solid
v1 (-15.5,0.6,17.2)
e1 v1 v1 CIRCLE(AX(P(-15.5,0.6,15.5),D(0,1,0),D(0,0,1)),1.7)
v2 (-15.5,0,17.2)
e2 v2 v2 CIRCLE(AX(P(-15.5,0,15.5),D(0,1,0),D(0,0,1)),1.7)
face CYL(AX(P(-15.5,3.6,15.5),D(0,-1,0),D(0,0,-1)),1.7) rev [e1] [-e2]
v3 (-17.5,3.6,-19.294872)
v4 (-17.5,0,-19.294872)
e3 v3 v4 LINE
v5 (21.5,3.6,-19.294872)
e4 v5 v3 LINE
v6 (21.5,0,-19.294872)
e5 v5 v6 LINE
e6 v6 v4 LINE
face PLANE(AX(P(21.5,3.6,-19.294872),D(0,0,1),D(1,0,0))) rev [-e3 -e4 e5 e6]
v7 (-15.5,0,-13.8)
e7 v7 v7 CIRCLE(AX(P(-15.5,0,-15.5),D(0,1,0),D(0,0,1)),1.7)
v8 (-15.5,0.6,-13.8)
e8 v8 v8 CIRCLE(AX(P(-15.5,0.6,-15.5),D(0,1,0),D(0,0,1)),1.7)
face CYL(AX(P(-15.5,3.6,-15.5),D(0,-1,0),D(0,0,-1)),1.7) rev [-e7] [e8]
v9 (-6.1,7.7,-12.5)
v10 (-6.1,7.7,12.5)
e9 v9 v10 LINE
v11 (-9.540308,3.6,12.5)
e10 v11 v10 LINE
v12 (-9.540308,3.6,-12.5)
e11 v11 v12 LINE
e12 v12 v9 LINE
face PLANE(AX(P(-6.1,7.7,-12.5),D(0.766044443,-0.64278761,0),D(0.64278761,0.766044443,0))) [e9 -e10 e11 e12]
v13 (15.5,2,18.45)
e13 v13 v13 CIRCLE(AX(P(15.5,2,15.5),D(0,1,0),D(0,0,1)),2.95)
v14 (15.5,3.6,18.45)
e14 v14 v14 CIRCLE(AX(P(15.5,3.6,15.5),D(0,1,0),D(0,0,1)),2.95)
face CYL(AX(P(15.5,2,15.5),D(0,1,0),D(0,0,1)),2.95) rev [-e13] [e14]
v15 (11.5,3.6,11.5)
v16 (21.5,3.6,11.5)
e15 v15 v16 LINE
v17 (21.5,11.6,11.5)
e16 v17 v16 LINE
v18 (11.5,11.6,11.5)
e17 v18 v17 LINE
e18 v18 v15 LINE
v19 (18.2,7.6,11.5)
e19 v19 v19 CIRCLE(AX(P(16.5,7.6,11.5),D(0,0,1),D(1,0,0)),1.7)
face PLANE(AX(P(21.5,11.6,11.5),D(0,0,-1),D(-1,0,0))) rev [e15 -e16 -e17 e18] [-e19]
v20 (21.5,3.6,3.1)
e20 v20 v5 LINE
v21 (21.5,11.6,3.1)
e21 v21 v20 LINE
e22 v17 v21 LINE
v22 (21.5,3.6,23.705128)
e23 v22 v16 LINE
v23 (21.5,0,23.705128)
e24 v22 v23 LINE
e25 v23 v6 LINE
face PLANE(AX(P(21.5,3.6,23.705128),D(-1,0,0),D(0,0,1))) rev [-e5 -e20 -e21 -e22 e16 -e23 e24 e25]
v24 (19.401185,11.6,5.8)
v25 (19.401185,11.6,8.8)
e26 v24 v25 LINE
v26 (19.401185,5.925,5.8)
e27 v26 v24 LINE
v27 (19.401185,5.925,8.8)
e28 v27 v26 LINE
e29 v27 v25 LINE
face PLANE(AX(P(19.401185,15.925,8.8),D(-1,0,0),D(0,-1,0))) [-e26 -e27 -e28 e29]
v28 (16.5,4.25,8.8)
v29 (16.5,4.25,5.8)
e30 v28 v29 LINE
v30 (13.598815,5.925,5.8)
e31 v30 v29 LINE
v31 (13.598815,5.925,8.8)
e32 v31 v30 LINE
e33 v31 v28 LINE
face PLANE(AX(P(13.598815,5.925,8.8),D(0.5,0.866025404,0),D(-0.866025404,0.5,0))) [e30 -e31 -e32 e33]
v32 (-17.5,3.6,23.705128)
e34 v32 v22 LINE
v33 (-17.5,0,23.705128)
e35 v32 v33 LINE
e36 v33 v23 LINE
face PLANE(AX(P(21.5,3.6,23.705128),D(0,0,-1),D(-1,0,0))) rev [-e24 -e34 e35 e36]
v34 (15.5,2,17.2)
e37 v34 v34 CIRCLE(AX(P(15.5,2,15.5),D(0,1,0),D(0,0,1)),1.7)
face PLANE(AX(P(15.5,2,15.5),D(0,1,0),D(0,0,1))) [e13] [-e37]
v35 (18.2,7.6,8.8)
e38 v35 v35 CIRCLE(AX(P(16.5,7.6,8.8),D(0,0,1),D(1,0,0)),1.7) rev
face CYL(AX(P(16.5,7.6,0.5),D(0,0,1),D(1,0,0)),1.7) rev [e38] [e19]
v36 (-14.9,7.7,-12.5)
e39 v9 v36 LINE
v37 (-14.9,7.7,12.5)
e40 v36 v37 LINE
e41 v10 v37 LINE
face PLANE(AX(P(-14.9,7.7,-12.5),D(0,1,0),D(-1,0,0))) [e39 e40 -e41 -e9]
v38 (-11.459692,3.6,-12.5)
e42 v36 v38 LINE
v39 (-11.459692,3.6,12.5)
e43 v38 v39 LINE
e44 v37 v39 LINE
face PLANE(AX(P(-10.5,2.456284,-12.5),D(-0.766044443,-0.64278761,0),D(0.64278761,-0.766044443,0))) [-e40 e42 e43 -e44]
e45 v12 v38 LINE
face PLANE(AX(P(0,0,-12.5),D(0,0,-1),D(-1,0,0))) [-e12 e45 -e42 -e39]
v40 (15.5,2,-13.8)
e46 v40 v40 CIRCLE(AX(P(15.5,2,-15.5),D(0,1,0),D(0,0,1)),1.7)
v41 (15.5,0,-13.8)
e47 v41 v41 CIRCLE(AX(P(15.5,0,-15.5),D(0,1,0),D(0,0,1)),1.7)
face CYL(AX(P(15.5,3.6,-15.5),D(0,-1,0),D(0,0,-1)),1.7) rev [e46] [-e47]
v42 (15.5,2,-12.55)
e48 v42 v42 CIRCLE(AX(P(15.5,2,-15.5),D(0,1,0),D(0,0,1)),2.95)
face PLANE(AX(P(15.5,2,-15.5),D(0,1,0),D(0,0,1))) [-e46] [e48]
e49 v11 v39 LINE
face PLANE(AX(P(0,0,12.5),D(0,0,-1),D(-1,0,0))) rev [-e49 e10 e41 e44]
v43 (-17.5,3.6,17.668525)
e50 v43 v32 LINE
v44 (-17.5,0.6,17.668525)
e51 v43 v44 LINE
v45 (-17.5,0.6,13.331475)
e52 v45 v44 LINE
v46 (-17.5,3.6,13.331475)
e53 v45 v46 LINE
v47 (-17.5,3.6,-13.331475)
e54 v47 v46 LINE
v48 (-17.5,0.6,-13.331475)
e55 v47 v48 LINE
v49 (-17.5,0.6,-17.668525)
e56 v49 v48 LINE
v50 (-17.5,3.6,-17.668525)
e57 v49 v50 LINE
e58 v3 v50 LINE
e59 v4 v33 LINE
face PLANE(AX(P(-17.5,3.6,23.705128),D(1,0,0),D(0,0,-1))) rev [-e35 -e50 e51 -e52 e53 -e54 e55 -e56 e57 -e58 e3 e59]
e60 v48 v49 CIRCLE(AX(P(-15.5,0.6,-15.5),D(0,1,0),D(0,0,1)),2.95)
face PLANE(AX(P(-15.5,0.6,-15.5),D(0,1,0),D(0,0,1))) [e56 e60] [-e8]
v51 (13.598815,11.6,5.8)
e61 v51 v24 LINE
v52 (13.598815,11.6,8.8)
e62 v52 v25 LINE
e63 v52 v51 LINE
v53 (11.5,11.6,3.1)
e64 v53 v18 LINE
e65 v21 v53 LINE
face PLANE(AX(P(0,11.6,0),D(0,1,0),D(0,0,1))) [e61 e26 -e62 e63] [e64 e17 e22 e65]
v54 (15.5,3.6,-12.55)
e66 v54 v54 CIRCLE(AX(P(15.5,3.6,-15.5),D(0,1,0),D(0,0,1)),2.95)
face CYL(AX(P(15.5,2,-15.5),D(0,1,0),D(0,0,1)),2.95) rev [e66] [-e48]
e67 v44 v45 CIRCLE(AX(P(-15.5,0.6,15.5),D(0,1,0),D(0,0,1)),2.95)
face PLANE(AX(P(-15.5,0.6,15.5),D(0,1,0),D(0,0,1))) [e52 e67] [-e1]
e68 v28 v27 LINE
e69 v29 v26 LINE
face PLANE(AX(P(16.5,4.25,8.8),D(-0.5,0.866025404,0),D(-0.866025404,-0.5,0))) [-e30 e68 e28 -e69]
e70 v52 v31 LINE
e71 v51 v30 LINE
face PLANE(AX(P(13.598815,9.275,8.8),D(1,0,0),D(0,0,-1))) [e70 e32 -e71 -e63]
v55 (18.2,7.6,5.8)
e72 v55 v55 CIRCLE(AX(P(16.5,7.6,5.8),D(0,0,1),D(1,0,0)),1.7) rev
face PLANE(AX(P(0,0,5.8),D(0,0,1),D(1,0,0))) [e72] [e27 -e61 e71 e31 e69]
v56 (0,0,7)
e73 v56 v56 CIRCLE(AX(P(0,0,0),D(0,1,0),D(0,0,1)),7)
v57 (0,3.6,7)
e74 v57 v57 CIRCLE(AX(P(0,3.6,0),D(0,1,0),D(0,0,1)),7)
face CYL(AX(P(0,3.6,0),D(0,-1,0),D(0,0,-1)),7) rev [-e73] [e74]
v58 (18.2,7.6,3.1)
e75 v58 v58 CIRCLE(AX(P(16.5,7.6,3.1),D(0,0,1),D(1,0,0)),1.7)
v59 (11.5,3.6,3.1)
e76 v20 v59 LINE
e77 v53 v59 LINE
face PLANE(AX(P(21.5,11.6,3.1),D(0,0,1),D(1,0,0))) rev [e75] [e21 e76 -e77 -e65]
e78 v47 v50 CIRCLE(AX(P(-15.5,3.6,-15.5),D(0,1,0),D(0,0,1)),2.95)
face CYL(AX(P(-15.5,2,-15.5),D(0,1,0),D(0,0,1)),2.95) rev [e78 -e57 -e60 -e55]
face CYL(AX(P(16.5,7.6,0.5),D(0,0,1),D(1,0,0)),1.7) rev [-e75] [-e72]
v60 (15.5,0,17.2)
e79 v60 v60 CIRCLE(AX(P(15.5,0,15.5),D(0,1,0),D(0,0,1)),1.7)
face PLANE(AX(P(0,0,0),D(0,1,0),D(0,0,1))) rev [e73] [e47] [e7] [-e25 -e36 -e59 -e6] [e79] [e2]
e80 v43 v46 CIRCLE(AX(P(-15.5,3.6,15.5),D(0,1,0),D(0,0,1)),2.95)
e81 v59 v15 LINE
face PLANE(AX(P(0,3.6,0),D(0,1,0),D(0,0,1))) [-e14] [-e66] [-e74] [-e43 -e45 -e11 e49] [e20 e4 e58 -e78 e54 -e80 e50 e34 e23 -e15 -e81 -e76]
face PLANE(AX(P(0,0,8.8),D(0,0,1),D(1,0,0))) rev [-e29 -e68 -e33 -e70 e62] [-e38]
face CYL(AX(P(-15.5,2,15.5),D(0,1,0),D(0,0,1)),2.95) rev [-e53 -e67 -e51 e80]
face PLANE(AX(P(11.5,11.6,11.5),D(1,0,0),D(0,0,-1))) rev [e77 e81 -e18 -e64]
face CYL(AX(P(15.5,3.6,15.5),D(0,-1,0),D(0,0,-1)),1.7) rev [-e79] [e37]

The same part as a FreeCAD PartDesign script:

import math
import FreeCAD as App
import Part
import Sketcher
from FreeCAD import Vector
Q = App.Units.Quantity

doc = App.newDocument("Part")
body = doc.addObject("PartDesign::Body", "Body")

# Sketch on XZ plane
sketch1 = body.newObject("Sketcher::SketchObject", "Sketch")
sketch1.AttachmentSupport = (doc.getObject("XZ_Plane"), [""])
sketch1.MapMode = "FlatFace"
sketch1.addGeometry(Part.LineSegment(Vector(-17.5, -19.3, 0), Vector(-17.5, 23.7, 0)), False)
sketch1.addGeometry(Part.LineSegment(Vector(-17.5, 23.7, 0), Vector(21.5, 23.7, 0)), False)
sketch1.addGeometry(Part.LineSegment(Vector(21.5, 23.7, 0), Vector(21.5, -19.3, 0)), False)
sketch1.addGeometry(Part.LineSegment(Vector(21.5, -19.3, 0), Vector(-17.5, -19.3, 0)), False)
sketch1.addGeometry(Part.Circle(Vector(-15.5, 15.5, 0), Vector(0, 0, 1), 1.7), False)
sketch1.addGeometry(Part.Circle(Vector(15.5, 15.5, 0), Vector(0, 0, 1), 1.7), False)
sketch1.addGeometry(Part.Circle(Vector(-15.5, -15.5, 0), Vector(0, 0, 1), 1.7), False)
sketch1.addGeometry(Part.Circle(Vector(0, 0, 0), Vector(0, 0, 1), 7), False)
sketch1.addGeometry(Part.Circle(Vector(15.5, -15.5, 0), Vector(0, 0, 1), 1.7), False)
sketch1.addConstraint(Sketcher.Constraint("Coincident", 0, 2, 1, 1))
sketch1.addConstraint(Sketcher.Constraint("Coincident", 1, 2, 2, 1))
sketch1.addConstraint(Sketcher.Constraint("Coincident", 2, 2, 3, 1))
sketch1.addConstraint(Sketcher.Constraint("Coincident", 3, 2, 0, 1))
sketch1.addConstraint(Sketcher.Constraint("Vertical", 0))
sketch1.addConstraint(Sketcher.Constraint("Horizontal", 1))
sketch1.addConstraint(Sketcher.Constraint("Vertical", 2))
sketch1.addConstraint(Sketcher.Constraint("Horizontal", 3))
sketch1.addConstraint(Sketcher.Constraint("Coincident", 7, 3, -1, 1))
sketch1.addConstraint(Sketcher.Constraint("Equal", 4, 5))
sketch1.addConstraint(Sketcher.Constraint("Equal", 5, 6))
sketch1.addConstraint(Sketcher.Constraint("Equal", 6, 8))
sketch1.addConstraint(Sketcher.Constraint("Symmetric", 5, 3, 6, 3, -1, 1))
sketch1.addConstraint(Sketcher.Constraint("Symmetric", 4, 3, 8, 3, -1, 1))
sketch1.addConstraint(Sketcher.Constraint("Symmetric", 4, 3, 5, 3, -2))
sketch1.addConstraint(Sketcher.Constraint("Diameter", 7, 14.0))
sketch1.addConstraint(Sketcher.Constraint("Diameter", 4, 3.4))
sketch1.addConstraint(Sketcher.Constraint("DistanceX", 1, 1, 1, 2, 39.0))
sketch1.addConstraint(Sketcher.Constraint("DistanceY", 0, 1, 0, 2, 43.0))
sketch1.addConstraint(Sketcher.Constraint("DistanceX", 4, 3, 5, 3, 31.0))
sketch1.addConstraint(Sketcher.Constraint("DistanceY", 6, 3, 4, 3, 31.0))
sketch1.addConstraint(Sketcher.Constraint("DistanceX", 0, 2, 4, 3, 2.0))
sketch1.addConstraint(Sketcher.Constraint("DistanceY", -1, 1, 0, 2, 23.705128))
pad1 = body.newObject("PartDesign::Pad", "Pad")
pad1.Profile = sketch1
pad1.Length = 3.6
pad1.Reversed = True

# Sketch on XZ plane
sketch2 = body.newObject("Sketcher::SketchObject", "Sketch001")
sketch2.AttachmentSupport = (doc.getObject("XZ_Plane"), [""])
sketch2.MapMode = "FlatFace"
sketch2.AttachmentOffset = App.Placement(Vector(0, 0, -3.6), App.Rotation())
sketch2.addGeometry(Part.Circle(Vector(-15.5, -15.5, 0), Vector(0, 0, 1), 3), False)
sketch2.addGeometry(Part.Circle(Vector(15.5, -15.5, 0), Vector(0, 0, 1), 3), False)
sketch2.addGeometry(Part.Circle(Vector(-15.5, 15.5, 0), Vector(0, 0, 1), 3), False)
sketch2.addGeometry(Part.Circle(Vector(15.5, 15.5, 0), Vector(0, 0, 1), 3), False)
sketch2.addConstraint(Sketcher.Constraint("Equal", 0, 1))
sketch2.addConstraint(Sketcher.Constraint("Equal", 1, 2))
sketch2.addConstraint(Sketcher.Constraint("Equal", 2, 3))
sketch2.addConstraint(Sketcher.Constraint("Symmetric", 1, 3, 2, 3, -1, 1))
sketch2.addConstraint(Sketcher.Constraint("Symmetric", 0, 3, 3, 3, -1, 1))
sketch2.addConstraint(Sketcher.Constraint("Symmetric", 0, 3, 1, 3, -2))
sketch2.addConstraint(Sketcher.Constraint("Diameter", 0, 5.9))
sketch2.addConstraint(Sketcher.Constraint("DistanceX", 0, 3, 1, 3, 31.0))
sketch2.addConstraint(Sketcher.Constraint("DistanceY", 0, 3, 2, 3, 31.0))
pocket1 = body.newObject("PartDesign::Pocket", "Pocket")
pocket1.Profile = sketch2
pocket1.Length = 1.6
pocket1.Reversed = True

# Sketch on XZ plane
sketch3 = body.newObject("Sketcher::SketchObject", "Sketch002")
sketch3.AttachmentSupport = (doc.getObject("XZ_Plane"), [""])
sketch3.MapMode = "FlatFace"
sketch3.AttachmentOffset = App.Placement(Vector(0, 0, -3.6), App.Rotation())
sketch3.addGeometry(Part.LineSegment(Vector(12, 3, 0), Vector(12, 12, 0)), False)
sketch3.addGeometry(Part.LineSegment(Vector(12, 12, 0), Vector(22, 12, 0)), False)
sketch3.addGeometry(Part.LineSegment(Vector(22, 12, 0), Vector(22, 3, 0)), False)
sketch3.addGeometry(Part.LineSegment(Vector(22, 3, 0), Vector(12, 3, 0)), False)
sketch3.addConstraint(Sketcher.Constraint("Coincident", 0, 2, 1, 1))
sketch3.addConstraint(Sketcher.Constraint("Coincident", 1, 2, 2, 1))
sketch3.addConstraint(Sketcher.Constraint("Coincident", 2, 2, 3, 1))
sketch3.addConstraint(Sketcher.Constraint("Coincident", 3, 2, 0, 1))
sketch3.addConstraint(Sketcher.Constraint("Vertical", 0))
sketch3.addConstraint(Sketcher.Constraint("Horizontal", 1))
sketch3.addConstraint(Sketcher.Constraint("Vertical", 2))
sketch3.addConstraint(Sketcher.Constraint("Horizontal", 3))
sketch3.addConstraint(Sketcher.Constraint("DistanceX", 1, 1, 1, 2, 10.0))
sketch3.addConstraint(Sketcher.Constraint("DistanceY", 0, 1, 0, 2, 8.4))
sketch3.addConstraint(Sketcher.Constraint("DistanceX", -1, 1, 0, 2, 11.5))
sketch3.addConstraint(Sketcher.Constraint("DistanceY", -1, 1, 0, 2, 11.5))
pad2 = body.newObject("PartDesign::Pad", "Pad001")
pad2.Profile = sketch3
pad2.Length = 8
pad2.Reversed = True

# Sketch on XY plane
sketch4 = body.newObject("Sketcher::SketchObject", "Sketch003")
sketch4.AttachmentSupport = (doc.getObject("XY_Plane"), [""])
sketch4.MapMode = "FlatFace"
sketch4.AttachmentOffset = App.Placement(Vector(0, 0, 11.5), App.Rotation())
sketch4.addGeometry(Part.Circle(Vector(16.5, 7.6, 0), Vector(0, 0, 1), 1.7), False)
sketch4.addConstraint(Sketcher.Constraint("Diameter", 0, 3.4))
sketch4.addConstraint(Sketcher.Constraint("DistanceX", -1, 1, 0, 3, 16.5))
sketch4.addConstraint(Sketcher.Constraint("DistanceY", -1, 1, 0, 3, 7.6))
pocket2 = body.newObject("PartDesign::Pocket", "Pocket001")
pocket2.Profile = sketch4
pocket2.Length = 11

# Sketch on XY plane
sketch5 = body.newObject("Sketcher::SketchObject", "Sketch004")
sketch5.AttachmentSupport = (doc.getObject("XY_Plane"), [""])
sketch5.MapMode = "FlatFace"
sketch5.AttachmentOffset = App.Placement(Vector(0, 0, 7.3), App.Rotation())
sketch5.addGeometry(Part.LineSegment(Vector(13.6, 15.9, 0), Vector(13.6, 5.9, 0)), False)
sketch5.addGeometry(Part.LineSegment(Vector(13.6, 5.9, 0), Vector(16.5, 4.2, 0)), False)
sketch5.addGeometry(Part.LineSegment(Vector(16.5, 4.2, 0), Vector(19.4, 5.9, 0)), False)
sketch5.addGeometry(Part.LineSegment(Vector(19.4, 5.9, 0), Vector(19.4, 15.9, 0)), False)
sketch5.addGeometry(Part.LineSegment(Vector(19.4, 15.9, 0), Vector(13.6, 15.9, 0)), False)
sketch5.addConstraint(Sketcher.Constraint("Coincident", 0, 2, 1, 1))
sketch5.addConstraint(Sketcher.Constraint("Coincident", 1, 2, 2, 1))
sketch5.addConstraint(Sketcher.Constraint("Coincident", 2, 2, 3, 1))
sketch5.addConstraint(Sketcher.Constraint("Coincident", 3, 2, 4, 1))
sketch5.addConstraint(Sketcher.Constraint("Coincident", 4, 2, 0, 1))
sketch5.addConstraint(Sketcher.Constraint("Vertical", 0))
sketch5.addConstraint(Sketcher.Constraint("Vertical", 3))
sketch5.addConstraint(Sketcher.Constraint("Horizontal", 4))
sketch5.addConstraint(Sketcher.Constraint("Horizontal", 0, 2, 2, 2))
sketch5.addConstraint(Sketcher.Constraint("Equal", 1, 2))
sketch5.addConstraint(Sketcher.Constraint("DistanceY", 0, 2, 0, 1, 10.0))
sketch5.addConstraint(Sketcher.Constraint("Angle", 1, Q("-30 deg")))
sketch5.addConstraint(Sketcher.Constraint("DistanceX", -1, 1, 1, 2, 16.5))
sketch5.addConstraint(Sketcher.Constraint("Distance", 1, 3.35))
sketch5.addConstraint(Sketcher.Constraint("DistanceY", -1, 1, 1, 2, 4.25))
pocket3 = body.newObject("PartDesign::Pocket", "Pocket002")
pocket3.Profile = sketch5
pocket3.Type = "TwoLengths"
pocket3.Length = 1.5
pocket3.Length2 = 1.5
pocket3.Reversed = True

# Sketch on XY plane
sketch6 = body.newObject("Sketcher::SketchObject", "Sketch005")
sketch6.AttachmentSupport = (doc.getObject("XY_Plane"), [""])
sketch6.MapMode = "FlatFace"
sketch6.addGeometry(Part.LineSegment(Vector(-15, 8, 0), Vector(-10, 2, 0)), False)
sketch6.addGeometry(Part.LineSegment(Vector(-10, 2, 0), Vector(-6, 8, 0)), False)
sketch6.addGeometry(Part.LineSegment(Vector(-6, 8, 0), Vector(-15, 8, 0)), False)
sketch6.addConstraint(Sketcher.Constraint("Coincident", 0, 2, 1, 1))
sketch6.addConstraint(Sketcher.Constraint("Coincident", 1, 2, 2, 1))
sketch6.addConstraint(Sketcher.Constraint("Coincident", 2, 2, 0, 1))
sketch6.addConstraint(Sketcher.Constraint("Horizontal", 2))
sketch6.addConstraint(Sketcher.Constraint("Equal", 0, 1))
sketch6.addConstraint(Sketcher.Constraint("Angle", 0, Q("-50 deg")))
sketch6.addConstraint(Sketcher.Constraint("DistanceX", 2, 2, 2, 1, 8.8))
sketch6.addConstraint(Sketcher.Constraint("DistanceX", 0, 2, -1, 1, 10.5))
sketch6.addConstraint(Sketcher.Constraint("DistanceY", -1, 1, 1, 2, 7.7))
pad3 = body.newObject("PartDesign::Pad", "Pad002")
pad3.Profile = sketch6
pad3.Type = "TwoLengths"
pad3.Length = 12.5
pad3.Length2 = 12.5

# Sketch on XZ plane
sketch7 = body.newObject("Sketcher::SketchObject", "Sketch006")
sketch7.AttachmentSupport = (doc.getObject("XZ_Plane"), [""])
sketch7.MapMode = "FlatFace"
sketch7.AttachmentOffset = App.Placement(Vector(0, 0, -3.6), App.Rotation())
sketch7.addGeometry(Part.LineSegment(Vector(-17.5, 13.3, 0), Vector(-17.5, 17.7, 0)), False)
sketch7.addGeometry(Part.ArcOfCircle(Part.Circle(Vector(-15.5, 15.5, 0), Vector(0, 0, 1), 3), math.radians(-133), math.radians(133)), False)
sketch7.addGeometry(Part.LineSegment(Vector(-17.5, -17.7, 0), Vector(-17.5, -13.3, 0)), False)
sketch7.addGeometry(Part.ArcOfCircle(Part.Circle(Vector(-15.5, -15.5, 0), Vector(0, 0, 1), 3), math.radians(-133), math.radians(133)), False)
sketch7.addConstraint(Sketcher.Constraint("Coincident", 0, 1, 1, 1))
sketch7.addConstraint(Sketcher.Constraint("Coincident", 1, 2, 0, 2))
sketch7.addConstraint(Sketcher.Constraint("Coincident", 2, 1, 3, 1))
sketch7.addConstraint(Sketcher.Constraint("Coincident", 3, 2, 2, 2))
sketch7.addConstraint(Sketcher.Constraint("Vertical", 0))
sketch7.addConstraint(Sketcher.Constraint("Vertical", 2))
sketch7.addConstraint(Sketcher.Constraint("Equal", 1, 3))
sketch7.addConstraint(Sketcher.Constraint("Symmetric", 1, 3, 3, 3, -1))
sketch7.addConstraint(Sketcher.Constraint("Vertical", 1, 2, 2, 1))
sketch7.addConstraint(Sketcher.Constraint("Radius", 1, 2.95))
sketch7.addConstraint(Sketcher.Constraint("DistanceY", 3, 3, 1, 3, 31.0))
sketch7.addConstraint(Sketcher.Constraint("DistanceX", 0, 1, 1, 3, 2.0))
sketch7.addConstraint(Sketcher.Constraint("DistanceX", 1, 3, -1, 1, 15.5))
pocket4 = body.newObject("PartDesign::Pocket", "Pocket003")
pocket4.Profile = sketch7
pocket4.Length = 3
pocket4.Reversed = True

doc.recompute()
